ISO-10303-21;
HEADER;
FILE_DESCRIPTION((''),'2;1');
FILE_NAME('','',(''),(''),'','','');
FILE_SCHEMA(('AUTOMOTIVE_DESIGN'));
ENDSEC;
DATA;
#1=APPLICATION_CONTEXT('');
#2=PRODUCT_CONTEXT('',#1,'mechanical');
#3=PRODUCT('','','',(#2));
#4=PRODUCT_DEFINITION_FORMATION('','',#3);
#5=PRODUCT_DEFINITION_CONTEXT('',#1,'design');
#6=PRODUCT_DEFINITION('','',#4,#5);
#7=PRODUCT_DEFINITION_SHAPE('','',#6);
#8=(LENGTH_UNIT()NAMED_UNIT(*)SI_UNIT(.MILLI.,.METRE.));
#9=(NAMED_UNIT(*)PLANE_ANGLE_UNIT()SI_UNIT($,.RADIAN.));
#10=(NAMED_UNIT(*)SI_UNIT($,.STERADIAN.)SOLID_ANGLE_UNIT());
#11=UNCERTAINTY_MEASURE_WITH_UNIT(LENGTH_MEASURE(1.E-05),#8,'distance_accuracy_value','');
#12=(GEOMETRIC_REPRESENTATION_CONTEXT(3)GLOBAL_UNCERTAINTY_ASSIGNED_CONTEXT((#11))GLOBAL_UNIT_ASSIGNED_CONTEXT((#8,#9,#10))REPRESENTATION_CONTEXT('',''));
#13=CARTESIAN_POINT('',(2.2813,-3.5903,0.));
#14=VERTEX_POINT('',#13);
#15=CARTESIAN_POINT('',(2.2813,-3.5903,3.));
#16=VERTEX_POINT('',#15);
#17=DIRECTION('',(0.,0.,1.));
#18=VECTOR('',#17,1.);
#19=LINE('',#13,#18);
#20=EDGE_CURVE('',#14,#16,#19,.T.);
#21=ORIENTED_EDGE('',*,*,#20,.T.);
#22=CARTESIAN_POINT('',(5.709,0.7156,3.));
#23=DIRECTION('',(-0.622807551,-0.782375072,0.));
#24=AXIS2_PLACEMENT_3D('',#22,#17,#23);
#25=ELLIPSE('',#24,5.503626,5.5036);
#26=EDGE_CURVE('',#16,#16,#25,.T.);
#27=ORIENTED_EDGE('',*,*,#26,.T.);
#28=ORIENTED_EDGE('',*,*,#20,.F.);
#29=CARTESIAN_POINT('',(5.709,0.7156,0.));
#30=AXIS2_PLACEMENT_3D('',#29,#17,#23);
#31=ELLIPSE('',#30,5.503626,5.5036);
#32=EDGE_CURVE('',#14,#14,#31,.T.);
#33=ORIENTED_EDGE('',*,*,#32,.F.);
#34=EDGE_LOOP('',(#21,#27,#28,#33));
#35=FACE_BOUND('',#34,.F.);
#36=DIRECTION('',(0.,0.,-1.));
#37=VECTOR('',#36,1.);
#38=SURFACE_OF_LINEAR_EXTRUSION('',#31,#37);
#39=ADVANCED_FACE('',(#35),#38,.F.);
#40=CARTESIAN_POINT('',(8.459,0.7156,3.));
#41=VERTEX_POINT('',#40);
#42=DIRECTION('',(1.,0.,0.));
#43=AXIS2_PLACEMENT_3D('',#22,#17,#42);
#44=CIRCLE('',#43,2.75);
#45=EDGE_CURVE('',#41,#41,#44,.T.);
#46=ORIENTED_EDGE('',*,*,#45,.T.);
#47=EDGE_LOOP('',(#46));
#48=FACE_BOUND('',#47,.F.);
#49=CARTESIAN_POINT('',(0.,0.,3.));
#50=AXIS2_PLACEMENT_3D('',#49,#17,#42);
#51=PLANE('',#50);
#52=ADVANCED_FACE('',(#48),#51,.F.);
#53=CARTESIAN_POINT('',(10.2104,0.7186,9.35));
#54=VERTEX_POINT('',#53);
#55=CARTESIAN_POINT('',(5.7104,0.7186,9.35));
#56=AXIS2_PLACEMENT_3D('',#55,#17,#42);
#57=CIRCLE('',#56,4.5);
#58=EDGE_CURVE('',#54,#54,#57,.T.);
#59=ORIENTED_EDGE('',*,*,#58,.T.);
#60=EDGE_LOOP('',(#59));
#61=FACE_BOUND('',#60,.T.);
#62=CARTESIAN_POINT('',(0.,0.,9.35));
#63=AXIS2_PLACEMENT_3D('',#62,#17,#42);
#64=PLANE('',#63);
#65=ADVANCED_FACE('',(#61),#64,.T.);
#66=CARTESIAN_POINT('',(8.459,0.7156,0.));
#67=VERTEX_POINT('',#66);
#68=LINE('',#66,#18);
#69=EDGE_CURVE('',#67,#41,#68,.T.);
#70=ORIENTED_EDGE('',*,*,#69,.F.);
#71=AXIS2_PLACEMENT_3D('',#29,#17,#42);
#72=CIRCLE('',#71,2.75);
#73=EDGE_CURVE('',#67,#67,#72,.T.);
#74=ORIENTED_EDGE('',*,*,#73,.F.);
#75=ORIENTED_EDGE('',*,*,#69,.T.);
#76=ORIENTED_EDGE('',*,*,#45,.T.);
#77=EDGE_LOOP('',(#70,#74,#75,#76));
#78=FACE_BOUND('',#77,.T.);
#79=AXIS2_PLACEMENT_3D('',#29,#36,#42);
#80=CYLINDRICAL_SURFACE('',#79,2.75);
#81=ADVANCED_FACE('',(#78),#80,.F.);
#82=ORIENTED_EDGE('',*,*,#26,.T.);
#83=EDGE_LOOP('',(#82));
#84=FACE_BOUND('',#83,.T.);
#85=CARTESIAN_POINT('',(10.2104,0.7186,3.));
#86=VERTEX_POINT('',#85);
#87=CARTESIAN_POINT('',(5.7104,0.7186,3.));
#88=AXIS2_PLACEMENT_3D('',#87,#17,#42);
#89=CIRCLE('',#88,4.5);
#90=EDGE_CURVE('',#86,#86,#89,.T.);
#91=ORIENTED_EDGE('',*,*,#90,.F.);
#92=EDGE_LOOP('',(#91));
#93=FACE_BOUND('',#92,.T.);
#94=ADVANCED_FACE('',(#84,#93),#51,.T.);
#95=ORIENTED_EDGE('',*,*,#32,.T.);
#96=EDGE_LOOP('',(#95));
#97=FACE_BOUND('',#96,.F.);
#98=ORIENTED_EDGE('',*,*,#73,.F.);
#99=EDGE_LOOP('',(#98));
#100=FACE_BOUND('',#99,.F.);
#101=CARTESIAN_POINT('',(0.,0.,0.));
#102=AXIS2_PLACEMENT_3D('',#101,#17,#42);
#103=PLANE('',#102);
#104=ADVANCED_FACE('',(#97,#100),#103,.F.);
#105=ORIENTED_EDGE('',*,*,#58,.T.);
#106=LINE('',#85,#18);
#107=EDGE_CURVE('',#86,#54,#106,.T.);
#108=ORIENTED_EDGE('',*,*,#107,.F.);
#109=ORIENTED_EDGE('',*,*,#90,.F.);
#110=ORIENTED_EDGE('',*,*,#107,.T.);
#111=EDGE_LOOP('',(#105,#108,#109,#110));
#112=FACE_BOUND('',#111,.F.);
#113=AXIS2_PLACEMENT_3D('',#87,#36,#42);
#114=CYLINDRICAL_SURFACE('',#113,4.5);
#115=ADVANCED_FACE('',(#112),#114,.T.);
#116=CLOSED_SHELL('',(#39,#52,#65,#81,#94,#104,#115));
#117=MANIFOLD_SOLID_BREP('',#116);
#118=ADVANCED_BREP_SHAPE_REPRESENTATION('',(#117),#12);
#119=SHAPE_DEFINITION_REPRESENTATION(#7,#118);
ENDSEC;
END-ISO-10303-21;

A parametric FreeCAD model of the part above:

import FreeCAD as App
import Part
import Sketcher
from FreeCAD import Vector

doc = App.newDocument("Part")
body = doc.addObject("PartDesign::Body", "Body")

# Sketch on XY plane
sketch1 = body.newObject("Sketcher::SketchObject", "Sketch")
sketch1.AttachmentSupport = (doc.getObject("XY_Plane"), [""])
sketch1.MapMode = "FlatFace"
sketch1.addGeometry([
    Part.Ellipse(Vector(2.2813, -3.5903, 0), Vector(10.014879, -2.712084, 0), Vector(5.709, 0.7156, 0)),
    Part.Circle(Vector(5.709, 0.7156, 0), Vector(0, 0, 1), 2.75),
], False)
sketch1.addConstraint([
    Sketcher.Constraint("Block", 0),
    Sketcher.Constraint("Diameter", 1, 5.5),
    Sketcher.Constraint("DistanceX", -1, 1, 1, 3, 5.709),
    Sketcher.Constraint("DistanceY", -1, 1, 1, 3, 0.7156),
])
pad1 = body.newObject("PartDesign::Pad", "Pad")
pad1.Profile = sketch1
pad1.Length = 3

# Sketch on XY plane
sketch2 = body.newObject("Sketcher::SketchObject", "Sketch001")
sketch2.AttachmentSupport = (doc.getObject("XY_Plane"), [""])
sketch2.MapMode = "FlatFace"
sketch2.AttachmentOffset = App.Placement(Vector(0, 0, 3), App.Rotation())
sketch2.addGeometry(Part.Circle(Vector(5.7, 0.7, 0), Vector(0, 0, 1), 4.5), False)
sketch2.addConstraint([
    Sketcher.Constraint("Diameter", 0, 9.0),
    Sketcher.Constraint("DistanceX", -1, 1, 0, 3, 5.7104),
    Sketcher.Constraint("DistanceY", -1, 1, 0, 3, 0.7186),
])
pad2 = body.newObject("PartDesign::Pad", "Pad001")
pad2.Profile = sketch2
pad2.Length = 6.35

doc.recompute()
